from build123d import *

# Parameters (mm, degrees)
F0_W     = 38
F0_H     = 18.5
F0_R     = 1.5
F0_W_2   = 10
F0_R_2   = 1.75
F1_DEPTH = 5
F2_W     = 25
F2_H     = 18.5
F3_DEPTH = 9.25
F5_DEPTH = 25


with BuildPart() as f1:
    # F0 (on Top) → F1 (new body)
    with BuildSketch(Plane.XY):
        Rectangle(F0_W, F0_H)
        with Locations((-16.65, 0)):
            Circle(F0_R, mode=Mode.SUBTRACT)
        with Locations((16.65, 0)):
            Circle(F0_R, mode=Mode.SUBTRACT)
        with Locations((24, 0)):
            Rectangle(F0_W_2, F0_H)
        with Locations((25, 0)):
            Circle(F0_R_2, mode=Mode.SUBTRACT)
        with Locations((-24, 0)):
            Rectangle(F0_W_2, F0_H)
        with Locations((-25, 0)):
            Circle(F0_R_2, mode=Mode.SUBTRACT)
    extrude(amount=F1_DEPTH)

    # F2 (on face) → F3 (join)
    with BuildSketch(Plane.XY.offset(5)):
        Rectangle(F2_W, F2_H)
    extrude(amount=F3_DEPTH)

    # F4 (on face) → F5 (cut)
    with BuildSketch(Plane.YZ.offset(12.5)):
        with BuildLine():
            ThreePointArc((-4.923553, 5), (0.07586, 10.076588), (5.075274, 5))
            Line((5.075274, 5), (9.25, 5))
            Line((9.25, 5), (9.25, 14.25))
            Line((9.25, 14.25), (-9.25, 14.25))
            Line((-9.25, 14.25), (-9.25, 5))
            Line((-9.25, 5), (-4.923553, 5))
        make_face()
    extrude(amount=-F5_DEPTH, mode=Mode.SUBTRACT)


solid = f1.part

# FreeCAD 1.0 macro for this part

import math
import FreeCAD as App
import Part
import Sketcher
from FreeCAD import Vector

doc = App.newDocument("Part")
body = doc.addObject("PartDesign::Body", "Body")

# Sketch on XY plane
sketch1 = doc.addObject("Sketcher::SketchObject", "Sketch")
body.addObject(sketch1)
sketch1.AttachmentSupport = (doc.XY_Plane, [""])
sketch1.MapMode = "FlatFace"
sketch1.addGeometry([
    Part.LineSegment(Vector(29, -9.2, 0), Vector(29, 9.2, 0)),  # 0
    Part.LineSegment(Vector(29, 9.2, 0), Vector(-29, 9.2, 0)),  # 1
    Part.LineSegment(Vector(-29, 9.2, 0), Vector(-29, -9.2, 0)),  # 2
    Part.LineSegment(Vector(-29, -9.2, 0), Vector(29, -9.2, 0)),  # 3
    Part.Circle(Vector(-25, 0, 0), Vector(0, 0, 1), 1.8),  # 4
    Part.Circle(Vector(-16.6, 0, 0), Vector(0, 0, 1), 1.5),  # 5
    Part.Circle(Vector(16.6, 0, 0), Vector(0, 0, 1), 1.5),  # 6
    Part.Circle(Vector(25, 0, 0), Vector(0, 0, 1), 1.8),  # 7
], False)
sketch1.addConstraint([
    Sketcher.Constraint("Coincident", 0, 2, 1, 1),
    Sketcher.Constraint("Coincident", 1, 2, 2, 1),
    Sketcher.Constraint("Coincident", 2, 2, 3, 1),
    Sketcher.Constraint("Coincident", 3, 2, 0, 1),
    Sketcher.Constraint("Vertical", 0),
    Sketcher.Constraint("Horizontal", 1),
    Sketcher.Constraint("Vertical", 2),
    Sketcher.Constraint("Horizontal", 3),
    Sketcher.Constraint("Equal", 5, 6),
    Sketcher.Constraint("Equal", 4, 7),
    Sketcher.Constraint("Symmetric", 5, 3, 6, 3, -1, 1),
    Sketcher.Constraint("Symmetric", 4, 3, 7, 3, -1, 1),
    Sketcher.Constraint("Symmetric", 0, 2, 2, 2, -1, 1),
    Sketcher.Constraint("PointOnObject", 4, 3, -1),
    Sketcher.Constraint("PointOnObject", 5, 3, -1),
    Sketcher.Constraint("Diameter", 5, 3.0),
    Sketcher.Constraint("Diameter", 4, 3.5),
    Sketcher.Constraint("DistanceX", 1, 2, 1, 1, 58.0),
    Sketcher.Constraint("DistanceY", 0, 1, 0, 2, 18.5),
    Sketcher.Constraint("DistanceX", 4, 3, -1, 1, 25.0),
    Sketcher.Constraint("DistanceX", 5, 3, 6, 3, 33.3),
])
pad1 = doc.addObject("PartDesign::Pad", "Pad")
body.addObject(pad1)
pad1.Profile = sketch1
pad1.Length = 5

# Sketch on XY plane
sketch2 = doc.addObject("Sketcher::SketchObject", "Sketch001")
body.addObject(sketch2)
sketch2.AttachmentSupport = (doc.XY_Plane, [""])
sketch2.MapMode = "FlatFace"
sketch2.AttachmentOffset = App.Placement(Vector(0, 0, 5), App.Rotation())
sketch2.addGeometry([
    Part.LineSegment(Vector(-12, 9, 0), Vector(-12, -9, 0)),
    Part.LineSegment(Vector(-12, -9, 0), Vector(12, -9, 0)),
    Part.LineSegment(Vector(12, -9, 0), Vector(12, 9, 0)),
    Part.LineSegment(Vector(12, 9, 0), Vector(-12, 9, 0)),
], False)
sketch2.addConstraint([
    Sketcher.Constraint("Coincident", 0, 2, 1, 1),
    Sketcher.Constraint("Coincident", 1, 2, 2, 1),
    Sketcher.Constraint("Coincident", 2, 2, 3, 1),
    Sketcher.Constraint("Coincident", 3, 2, 0, 1),
    Sketcher.Constraint("Vertical", 0),
    Sketcher.Constraint("Horizontal", 1),
    Sketcher.Constraint("Vertical", 2),
    Sketcher.Constraint("Horizontal", 3),
    Sketcher.Constraint("Symmetric", 0, 2, 2, 2, -1, 1),
    Sketcher.Constraint("DistanceX", 1, 1, 1, 2, 25.0),
    Sketcher.Constraint("DistanceY", 0, 2, 0, 1, 18.5),
])
pad2 = doc.addObject("PartDesign::Pad", "Pad001")
body.addObject(pad2)
pad2.Profile = sketch2
pad2.Length = 9.25

# Sketch on YZ plane
sketch3 = doc.addObject("Sketcher::SketchObject", "Sketch002")
body.addObject(sketch3)
sketch3.AttachmentSupport = (doc.YZ_Plane, [""])
sketch3.MapMode = "FlatFace"
sketch3.AttachmentOffset = App.Placement(Vector(0, 0, 12.5), App.Rotation())
sketch3.addGeometry([
    Part.ArcOfCircle(Part.Circle(Vector(0.1, 5.1, 0), Vector(0, 0, 1), 5), math.radians(-1), math.radians(181)),  # 0
    Part.LineSegment(Vector(5.1, 5, 0), Vector(9.2, 5, 0)),  # 1
    Part.LineSegment(Vector(9.2, 5, 0), Vector(9.2, 14.2, 0)),  # 2
    Part.LineSegment(Vector(9.2, 14.2, 0), Vector(-9.2, 14.2, 0)),  # 3
    Part.LineSegment(Vector(-9.2, 14.2, 0), Vector(-9.2, 5, 0)),  # 4
    Part.LineSegment(Vector(-9.2, 5, 0), Vector(-4.9, 5, 0)),  # 5
], False)
sketch3.addConstraint([
    Sketcher.Constraint("Coincident", 0, 1, 1, 1),
    Sketcher.Constraint("Coincident", 1, 2, 2, 1),
    Sketcher.Constraint("Coincident", 2, 2, 3, 1),
    Sketcher.Constraint("Coincident", 3, 2, 4, 1),
    Sketcher.Constraint("Coincident", 4, 2, 5, 1),
    Sketcher.Constraint("Coincident", 5, 2, 0, 2),
    Sketcher.Constraint("Horizontal", 1),
    Sketcher.Constraint("Vertical", 2),
    Sketcher.Constraint("Horizontal", 3),
    Sketcher.Constraint("Vertical", 4),
    Sketcher.Constraint("Horizontal", 5),
    Sketcher.Constraint("Symmetric", 1, 2, 4, 2, -2),
    Sketcher.Constraint("Radius", 0, 5.0),
    Sketcher.Constraint("DistanceX", 3, 2, 3, 1, 18.5),
    Sketcher.Constraint("DistanceY", -1, 1, 0, 1, 5.0),
    Sketcher.Constraint("DistanceY", 2, 1, 2, 2, 9.25),
    Sketcher.Constraint("DistanceX", 1, 1, 1, 2, 4.174726),
    Sketcher.Constraint("DistanceX", 5, 1, 5, 2, 4.326447),
])
pocket1 = doc.addObject("PartDesign::Pocket", "Pocket")
body.addObject(pocket1)
pocket1.Profile = sketch3
pocket1.Length = 25

doc.recompute()
